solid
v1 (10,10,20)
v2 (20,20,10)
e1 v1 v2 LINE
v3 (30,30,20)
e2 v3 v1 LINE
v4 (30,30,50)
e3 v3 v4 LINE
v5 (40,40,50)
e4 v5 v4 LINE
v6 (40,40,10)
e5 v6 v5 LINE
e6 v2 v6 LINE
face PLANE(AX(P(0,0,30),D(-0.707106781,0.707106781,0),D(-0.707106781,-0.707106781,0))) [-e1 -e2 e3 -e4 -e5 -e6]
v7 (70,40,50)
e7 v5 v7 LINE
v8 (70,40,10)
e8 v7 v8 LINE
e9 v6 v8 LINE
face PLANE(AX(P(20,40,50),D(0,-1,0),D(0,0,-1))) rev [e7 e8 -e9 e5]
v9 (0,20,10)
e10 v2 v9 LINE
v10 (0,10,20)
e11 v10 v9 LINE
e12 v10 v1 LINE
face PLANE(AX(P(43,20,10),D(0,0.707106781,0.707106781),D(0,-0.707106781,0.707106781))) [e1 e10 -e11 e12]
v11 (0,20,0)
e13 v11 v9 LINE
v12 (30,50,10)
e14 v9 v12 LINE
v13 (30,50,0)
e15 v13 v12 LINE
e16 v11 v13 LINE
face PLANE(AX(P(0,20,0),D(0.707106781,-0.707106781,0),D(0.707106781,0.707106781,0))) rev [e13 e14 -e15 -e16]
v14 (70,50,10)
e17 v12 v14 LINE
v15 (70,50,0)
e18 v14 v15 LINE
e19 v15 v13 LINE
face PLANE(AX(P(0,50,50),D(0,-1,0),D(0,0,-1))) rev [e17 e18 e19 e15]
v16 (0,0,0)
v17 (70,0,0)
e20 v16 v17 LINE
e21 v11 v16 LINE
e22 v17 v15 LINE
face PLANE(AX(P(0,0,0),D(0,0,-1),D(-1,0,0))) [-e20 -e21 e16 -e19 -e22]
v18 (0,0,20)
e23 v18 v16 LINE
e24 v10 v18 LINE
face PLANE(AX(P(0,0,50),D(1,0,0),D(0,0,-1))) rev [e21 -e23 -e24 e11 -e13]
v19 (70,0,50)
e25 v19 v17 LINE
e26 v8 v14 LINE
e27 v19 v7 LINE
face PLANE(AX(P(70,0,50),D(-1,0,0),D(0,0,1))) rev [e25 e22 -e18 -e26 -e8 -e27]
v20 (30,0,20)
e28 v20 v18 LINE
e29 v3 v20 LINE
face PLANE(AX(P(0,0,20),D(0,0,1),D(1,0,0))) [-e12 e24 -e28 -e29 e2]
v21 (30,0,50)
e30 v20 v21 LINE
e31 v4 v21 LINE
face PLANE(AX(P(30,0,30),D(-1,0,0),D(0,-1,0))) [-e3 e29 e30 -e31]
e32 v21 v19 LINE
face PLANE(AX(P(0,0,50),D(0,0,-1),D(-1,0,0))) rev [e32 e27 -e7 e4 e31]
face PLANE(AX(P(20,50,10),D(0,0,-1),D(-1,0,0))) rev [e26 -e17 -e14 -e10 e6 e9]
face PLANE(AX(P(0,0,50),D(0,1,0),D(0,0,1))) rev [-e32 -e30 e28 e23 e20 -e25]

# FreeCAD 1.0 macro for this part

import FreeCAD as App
import Part
import Sketcher

V = App.Vector
Q = App.Units.Quantity

doc = App.newDocument("Part")
body = doc.addObject("PartDesign::Body", "Body")

# Sketch on XY plane
sketch1 = doc.addObject("Sketcher::SketchObject", "Sketch")
body.addObject(sketch1)
sketch1.AttachmentSupport = (doc.XY_Plane, [""])
sketch1.MapMode = "FlatFace"
sketch1.addGeometry([
    Part.LineSegment(V(0, 50, 0), V(0, 0, 0)),
    Part.LineSegment(V(0, 0, 0), V(70, 0, 0)),
    Part.LineSegment(V(70, 0, 0), V(70, 50, 0)),
    Part.LineSegment(V(70, 50, 0), V(0, 50, 0)),
], False)
sketch1.addConstraint([
    Sketcher.Constraint("Coincident", 0, 2, 1, 1),
    Sketcher.Constraint("Coincident", 1, 2, 2, 1),
    Sketcher.Constraint("Coincident", 2, 2, 3, 1),
    Sketcher.Constraint("Coincident", 3, 2, 0, 1),
    Sketcher.Constraint("Vertical", 0),
    Sketcher.Constraint("Horizontal", 1),
    Sketcher.Constraint("Vertical", 2),
    Sketcher.Constraint("Horizontal", 3),
    Sketcher.Constraint("Coincident", 0, 2, -1, 1),
    Sketcher.Constraint("DistanceX", 1, 1, 1, 2, Q("70 mm")),
    Sketcher.Constraint("DistanceY", 0, 2, 0, 1, Q("50 mm")),
])
pad1 = doc.addObject("PartDesign::Pad", "Pad")
body.addObject(pad1)
pad1.Profile = sketch1
pad1.Length = 50

# Sketch on XY plane
sketch2 = doc.addObject("Sketcher::SketchObject", "Sketch001")
body.addObject(sketch2)
sketch2.AttachmentSupport = (doc.XY_Plane, [""])
sketch2.MapMode = "FlatFace"
sketch2.AttachmentOffset = App.Placement(V(0, 0, 50), App.Rotation())
sketch2.addGeometry([
    Part.LineSegment(V(0, 20, 0), V(30, 50, 0)),
    Part.LineSegment(V(30, 50, 0), V(0, 50, 0)),
    Part.LineSegment(V(0, 50, 0), V(0, 20, 0)),
], False)
sketch2.addConstraint([
    Sketcher.Constraint("Coincident", 0, 2, 1, 1),
    Sketcher.Constraint("Coincident", 1, 2, 2, 1),
    Sketcher.Constraint("Coincident", 2, 2, 0, 1),
    Sketcher.Constraint("Horizontal", 1),
    Sketcher.Constraint("Vertical", 2),
    Sketcher.Constraint("PointOnObject", 1, 2, -2),
    Sketcher.Constraint("Equal", 1, 2),
    Sketcher.Constraint("DistanceX", 1, 2, 1, 1, Q("30 mm")),
    Sketcher.Constraint("DistanceY", -1, 1, 0, 2, Q("50 mm")),
])
pocket1 = doc.addObject("PartDesign::Pocket", "Pocket")
body.addObject(pocket1)
pocket1.Profile = sketch2
pocket1.Length = 50

# Sketch on YZ plane
sketch3 = doc.addObject("Sketcher::SketchObject", "Sketch002")
body.addObject(sketch3)
sketch3.AttachmentSupport = (doc.YZ_Plane, [""])
sketch3.MapMode = "FlatFace"
sketch3.AttachmentOffset = App.Placement(V(0, 0, 70), App.Rotation())
sketch3.addGeometry([
    Part.LineSegment(V(50, 50, 0), V(40, 50, 0)),
    Part.LineSegment(V(40, 50, 0), V(40, 10, 0)),
    Part.LineSegment(V(40, 10, 0), V(50, 10, 0)),
    Part.LineSegment(V(50, 10, 0), V(50, 50, 0)),
], False)
sketch3.addConstraint([
    Sketcher.Constraint("Coincident", 0, 2, 1, 1),
    Sketcher.Constraint("Coincident", 1, 2, 2, 1),
    Sketcher.Constraint("Coincident", 2, 2, 3, 1),
    Sketcher.Constraint("Coincident", 3, 2, 0, 1),
    Sketcher.Constraint("Horizontal", 0),
    Sketcher.Constraint("Vertical", 1),
    Sketcher.Constraint("Horizontal", 2),
    Sketcher.Constraint("Vertical", 3),
    Sketcher.Constraint("DistanceX", 0, 2, 0, 1, Q("10 mm")),
    Sketcher.Constraint("DistanceY", 1, 2, 1, 1, Q("40 mm")),
    Sketcher.Constraint("DistanceX", -1, 1, 0, 2, Q("40 mm")),
    Sketcher.Constraint("DistanceY", -1, 1, 0, 2, Q("50 mm")),
])
pocket2 = doc.addObject("PartDesign::Pocket", "Pocket001")
body.addObject(pocket2)
pocket2.Profile = sketch3
pocket2.Length = 50

# Sketch on XY plane
sketch4 = doc.addObject("Sketcher::SketchObject", "Sketch003")
body.addObject(sketch4)
sketch4.AttachmentSupport = (doc.XY_Plane, [""])
sketch4.MapMode = "FlatFace"
sketch4.AttachmentOffset = App.Placement(V(0, 0, 50), App.Rotation())
sketch4.addGeometry([
    Part.LineSegment(V(30, 30, 0), V(40, 40, 0)),  # 0
    Part.LineSegment(V(40, 40, 0), V(20, 40, 0)),  # 1
    Part.LineSegment(V(20, 40, 0), V(0, 20, 0)),  # 2
    Part.LineSegment(V(0, 20, 0), V(0, 0, 0)),  # 3
    Part.LineSegment(V(0, 0, 0), V(30, 0, 0)),  # 4
    Part.LineSegment(V(30, 0, 0), V(30, 30, 0)),  # 5
], False)
sketch4.addConstraint([
    Sketcher.Constraint("Coincident", 0, 2, 1, 1),
    Sketcher.Constraint("Coincident", 1, 2, 2, 1),
    Sketcher.Constraint("Coincident", 2, 2, 3, 1),
    Sketcher.Constraint("Coincident", 3, 2, 4, 1),
    Sketcher.Constraint("Coincident", 4, 2, 5, 1),
    Sketcher.Constraint("Coincident", 5, 2, 0, 1),
    Sketcher.Constraint("Horizontal", 1),
    Sketcher.Constraint("Vertical", 3),
    Sketcher.Constraint("Horizontal", 4),
    Sketcher.Constraint("Vertical", 5),
    Sketcher.Constraint("Coincident", 3, 2, -1, 1),
    Sketcher.Constraint("Parallel", 0, 2),
    Sketcher.Constraint("Equal", 1, 3),
    Sketcher.Constraint("Equal", 4, 5),
    Sketcher.Constraint("DistanceX", 1, 2, 1, 1, Q("20 mm")),
    Sketcher.Constraint("DistanceX", 4, 1, 4, 2, Q("30 mm")),
    Sketcher.Constraint("DistanceX", -1, 1, 0, 2, Q("40 mm")),
])
pocket3 = doc.addObject("PartDesign::Pocket", "Pocket002")
body.addObject(pocket3)
pocket3.Profile = sketch4
pocket3.Length = 20

# Sketch on XY plane
sketch5 = doc.addObject("Sketcher::SketchObject", "Sketch004")
body.addObject(sketch5)
sketch5.AttachmentSupport = (doc.XY_Plane, [""])
sketch5.MapMode = "FlatFace"
sketch5.AttachmentOffset = App.Placement(V(0, 0, 30), App.Rotation())
sketch5.addGeometry([
    Part.LineSegment(V(0, 10, 0), V(10, 10, 0)),  # 0
    Part.LineSegment(V(10, 10, 0), V(40, 40, 0)),  # 1
    Part.LineSegment(V(40, 40, 0), V(20, 40, 0)),  # 2
    Part.LineSegment(V(20, 40, 0), V(0, 20, 0)),  # 3
    Part.LineSegment(V(0, 20, 0), V(0, 10, 0)),  # 4
], False)
sketch5.addConstraint([
    Sketcher.Constraint("Coincident", 0, 2, 1, 1),
    Sketcher.Constraint("Coincident", 1, 2, 2, 1),
    Sketcher.Constraint("Coincident", 2, 2, 3, 1),
    Sketcher.Constraint("Coincident", 3, 2, 4, 1),
    Sketcher.Constraint("Coincident", 4, 2, 0, 1),
    Sketcher.Constraint("Horizontal", 0),
    Sketcher.Constraint("Horizontal", 2),
    Sketcher.Constraint("Vertical", 4),
    Sketcher.Constraint("PointOnObject", 3, 2, -2),
    Sketcher.Constraint("Parallel", 1, 3),
    Sketcher.Constraint("Equal", 0, 4),
    Sketcher.Constraint("DistanceX", 0, 1, 0, 2, Q("10 mm")),
    Sketcher.Constraint("DistanceX", 2, 2, 2, 1, Q("20 mm")),
    Sketcher.Constraint("DistanceY", -1, 1, 0, 2, Q("10 mm")),
    Sketcher.Constraint("DistanceX", -1, 1, 1, 2, Q("40 mm")),
])
pocket4 = doc.addObject("PartDesign::Pocket", "Pocket003")
body.addObject(pocket4)
pocket4.Profile = sketch5
pocket4.Length = 10

# Sketch on YZ plane
sketch6 = doc.addObject("Sketcher::SketchObject", "Sketch005")
body.addObject(sketch6)
sketch6.AttachmentSupport = (doc.YZ_Plane, [""])
sketch6.MapMode = "FlatFace"
sketch6.addGeometry([
    Part.LineSegment(V(10, 30, 0), V(0, 20, 0)),
    Part.LineSegment(V(0, 20, 0), V(0, 30, 0)),
    Part.LineSegment(V(0, 30, 0), V(10, 30, 0)),
], False)
sketch6.addConstraint([
    Sketcher.Constraint("Coincident", 0, 2, 1, 1),
    Sketcher.Constraint("Coincident", 1, 2, 2, 1),
    Sketcher.Constraint("Coincident", 2, 2, 0, 1),
    Sketcher.Constraint("Vertical", 1),
    Sketcher.Constraint("Horizontal", 2),
    Sketcher.Constraint("PointOnObject", 0, 2, -2),
    Sketcher.Constraint("Equal", 2, 1),
    Sketcher.Constraint("DistanceX", 2, 1, 2, 2, Q("10 mm")),
    Sketcher.Constraint("DistanceY", -1, 1, 0, 2, Q("20 mm")),
])
pocket5 = doc.addObject("PartDesign::Pocket", "Pocket004")
body.addObject(pocket5)
pocket5.Profile = sketch6
pocket5.Length = 30
pocket5.Reversed = True

# Sketch on YZ plane
sketch7 = doc.addObject("Sketcher::SketchObject", "Sketch006")
body.addObject(sketch7)
sketch7.AttachmentSupport = (doc.YZ_Plane, [""])
sketch7.MapMode = "FlatFace"
sketch7.addGeometry([
    Part.LineSegment(V(10, 30, 0), V(10, 20, 0)),
    Part.LineSegment(V(10, 20, 0), V(0, 20, 0)),
    Part.LineSegment(V(0, 20, 0), V(10, 30, 0)),
], False)
sketch7.addConstraint([
    Sketcher.Constraint("Coincident", 0, 2, 1, 1),
    Sketcher.Constraint("Coincident", 1, 2, 2, 1),
    Sketcher.Constraint("Coincident", 2, 2, 0, 1),
    Sketcher.Constraint("Vertical", 0),
    Sketcher.Constraint("Horizontal", 1),
    Sketcher.Constraint("PointOnObject", 1, 2, -2),
    Sketcher.Constraint("Equal", 1, 0),
    Sketcher.Constraint("DistanceX", 1, 2, 1, 1, Q("10 mm")),
    Sketcher.Constraint("DistanceY", -1, 1, 0, 2, Q("20 mm")),
])
pocket6 = doc.addObject("PartDesign::Pocket", "Pocket005")
body.addObject(pocket6)
pocket6.Profile = sketch7
pocket6.Length = 30
pocket6.Reversed = True

# Sketch on XY plane
sketch8 = doc.addObject("Sketcher::SketchObject", "Sketch007")
body.addObject(sketch8)
sketch8.AttachmentSupport = (doc.XY_Plane, [""])
sketch8.MapMode = "FlatFace"
sketch8.AttachmentOffset = App.Placement(V(0, 0, 20), App.Rotation())
sketch8.addGeometry([
    Part.LineSegment(V(40, 40, 0), V(20, 40, 0)),  # 0
    Part.LineSegment(V(20, 40, 0), V(0, 20, 0)),  # 1
    Part.LineSegment(V(0, 20, 0), V(0, 10, 0)),  # 2
    Part.LineSegment(V(0, 10, 0), V(10, 10, 0)),  # 3
    Part.LineSegment(V(10, 10, 0), V(40, 40, 0)),  # 4
], False)
sketch8.addConstraint([
    Sketcher.Constraint("Coincident", 0, 2, 1, 1),
    Sketcher.Constraint("Coincident", 1, 2, 2, 1),
    Sketcher.Constraint("Coincident", 2, 2, 3, 1),
    Sketcher.Constraint("Coincident", 3, 2, 4, 1),
    Sketcher.Constraint("Coincident", 4, 2, 0, 1),
    Sketcher.Constraint("Horizontal", 0),
    Sketcher.Constraint("Vertical", 2),
    Sketcher.Constraint("Horizontal", 3),
    Sketcher.Constraint("PointOnObject", 1, 2, -2),
    Sketcher.Constraint("Parallel", 1, 4),
    Sketcher.Constraint("Equal", 3, 2),
    Sketcher.Constraint("DistanceX", 0, 2, 0, 1, Q("20 mm")),
    Sketcher.Constraint("DistanceX", 3, 1, 3, 2, Q("10 mm")),
    Sketcher.Constraint("DistanceX", -1, 1, 0, 2, Q("20 mm")),
    Sketcher.Constraint("DistanceY", -1, 1, 0, 2, Q("40 mm")),
])
pocket7 = doc.addObject("PartDesign::Pocket", "Pocket006")
body.addObject(pocket7)
pocket7.Profile = sketch8
pocket7.Length = 10

# Sketch on YZ plane
sketch9 = doc.addObject("Sketcher::SketchObject", "Sketch008")
body.addObject(sketch9)
sketch9.AttachmentSupport = (doc.YZ_Plane, [""])
sketch9.MapMode = "FlatFace"
sketch9.addGeometry([
    Part.LineSegment(V(10, 20, 0), V(20, 10, 0)),
    Part.LineSegment(V(20, 10, 0), V(10, 10, 0)),
    Part.LineSegment(V(10, 10, 0), V(10, 20, 0)),
], False)
sketch9.addConstraint([
    Sketcher.Constraint("Coincident", 0, 2, 1, 1),
    Sketcher.Constraint("Coincident", 1, 2, 2, 1),
    Sketcher.Constraint("Coincident", 2, 2, 0, 1),
    Sketcher.Constraint("Horizontal", 1),
    Sketcher.Constraint("Vertical", 2),
    Sketcher.Constraint("Equal", 1, 2),
    Sketcher.Constraint("DistanceX", 1, 2, 1, 1, Q("10 mm")),
    Sketcher.Constraint("DistanceX", -1, 1, 0, 2, Q("20 mm")),
    Sketcher.Constraint("DistanceY", -1, 1, 0, 2, Q("10 mm")),
])
pad2 = doc.addObject("PartDesign::Pad", "Pad001")
body.addObject(pad2)
pad2.Profile = sketch9
pad2.Length = 43

# Sketch on XY plane
sketch10 = doc.addObject("Sketcher::SketchObject", "Sketch009")
body.addObject(sketch10)
sketch10.AttachmentSupport = (doc.XY_Plane, [""])
sketch10.MapMode = "FlatFace"
sketch10.AttachmentOffset = App.Placement(V(0, 0, 30), App.Rotation())
sketch10.addGeometry([
    Part.LineSegment(V(10, 10, 0), V(30, 10, 0)),
    Part.LineSegment(V(30, 10, 0), V(30, 30, 0)),
    Part.LineSegment(V(30, 30, 0), V(10, 10, 0)),
], False)
sketch10.addConstraint([
    Sketcher.Constraint("Coincident", 0, 2, 1, 1),
    Sketcher.Constraint("Coincident", 1, 2, 2, 1),
    Sketcher.Constraint("Coincident", 2, 2, 0, 1),
    Sketcher.Constraint("Horizontal", 0),
    Sketcher.Constraint("Vertical", 1),
    Sketcher.Constraint("Equal", 0, 1),
    Sketcher.Constraint("DistanceX", 0, 1, 0, 2, Q("20 mm")),
    Sketcher.Constraint("DistanceX", -1, 1, 0, 2, Q("30 mm")),
    Sketcher.Constraint("DistanceY", -1, 1, 0, 2, Q("10 mm")),
])
pocket8 = doc.addObject("PartDesign::Pocket", "Pocket007")
body.addObject(pocket8)
pocket8.Profile = sketch10
pocket8.Length = 10

doc.recompute()
